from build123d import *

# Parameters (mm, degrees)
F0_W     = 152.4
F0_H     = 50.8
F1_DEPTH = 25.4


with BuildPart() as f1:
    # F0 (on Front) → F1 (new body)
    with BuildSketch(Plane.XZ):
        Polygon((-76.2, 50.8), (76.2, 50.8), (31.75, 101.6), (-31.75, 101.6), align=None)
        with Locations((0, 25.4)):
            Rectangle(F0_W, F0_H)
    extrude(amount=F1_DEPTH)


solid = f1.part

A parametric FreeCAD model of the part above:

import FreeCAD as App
import Part
import Sketcher
Q = App.Units.Quantity


def add_polygon(sketch, points):
    """Adds a closed chain of lines whose ends are joined by coincident constraints."""
    first, n = sketch.GeometryCount, len(points)
    for a, b in zip(points, points[1:] + points[:1]):
        sketch.addGeometry(Part.LineSegment(App.Vector(*a, 0), App.Vector(*b, 0)), False)
    for i in range(n):
        sketch.addConstraint(Sketcher.Constraint("Coincident", first + i, 2, first + (i + 1) % n, 1))

doc = App.newDocument("Part")
body = doc.addObject("PartDesign::Body", "Body")

# Sketch on XZ plane
sketch1 = body.newObject("Sketcher::SketchObject", "Sketch")
sketch1.AttachmentSupport = (doc.getObject("XZ_Plane"), [""])
sketch1.MapMode = "FlatFace"
add_polygon(sketch1, [(76, 51), (32, 102), (-32, 102), (-76, 51), (-76, 0), (76, 0)])  # lines 0-5
sketch1.addConstraint([
    Sketcher.Constraint("Horizontal", 1),
    Sketcher.Constraint("Vertical", 3),
    Sketcher.Constraint("Horizontal", 4),
    Sketcher.Constraint("Vertical", 5),
    Sketcher.Constraint("Symmetric", 3, 2, 4, 2, -1, 1),
    Sketcher.Constraint("Horizontal", 2, 2, 5, 2),
    Sketcher.Constraint("Equal", 0, 2),
    Sketcher.Constraint("DistanceX", 4, 1, 4, 2, Q("6 in")),
    Sketcher.Constraint("DistanceY", 3, 2, 3, 1, Q("2 in")),
    Sketcher.Constraint("DistanceX", 1, 2, 1, 1, Q("2.5 in")),
    Sketcher.Constraint("DistanceY", -1, 1, 0, 2, Q("4 in")),
])
pad1 = body.newObject("PartDesign::Pad", "Pad")
pad1.Profile = sketch1
pad1.Length = Q("1 in")

doc.recompute()
